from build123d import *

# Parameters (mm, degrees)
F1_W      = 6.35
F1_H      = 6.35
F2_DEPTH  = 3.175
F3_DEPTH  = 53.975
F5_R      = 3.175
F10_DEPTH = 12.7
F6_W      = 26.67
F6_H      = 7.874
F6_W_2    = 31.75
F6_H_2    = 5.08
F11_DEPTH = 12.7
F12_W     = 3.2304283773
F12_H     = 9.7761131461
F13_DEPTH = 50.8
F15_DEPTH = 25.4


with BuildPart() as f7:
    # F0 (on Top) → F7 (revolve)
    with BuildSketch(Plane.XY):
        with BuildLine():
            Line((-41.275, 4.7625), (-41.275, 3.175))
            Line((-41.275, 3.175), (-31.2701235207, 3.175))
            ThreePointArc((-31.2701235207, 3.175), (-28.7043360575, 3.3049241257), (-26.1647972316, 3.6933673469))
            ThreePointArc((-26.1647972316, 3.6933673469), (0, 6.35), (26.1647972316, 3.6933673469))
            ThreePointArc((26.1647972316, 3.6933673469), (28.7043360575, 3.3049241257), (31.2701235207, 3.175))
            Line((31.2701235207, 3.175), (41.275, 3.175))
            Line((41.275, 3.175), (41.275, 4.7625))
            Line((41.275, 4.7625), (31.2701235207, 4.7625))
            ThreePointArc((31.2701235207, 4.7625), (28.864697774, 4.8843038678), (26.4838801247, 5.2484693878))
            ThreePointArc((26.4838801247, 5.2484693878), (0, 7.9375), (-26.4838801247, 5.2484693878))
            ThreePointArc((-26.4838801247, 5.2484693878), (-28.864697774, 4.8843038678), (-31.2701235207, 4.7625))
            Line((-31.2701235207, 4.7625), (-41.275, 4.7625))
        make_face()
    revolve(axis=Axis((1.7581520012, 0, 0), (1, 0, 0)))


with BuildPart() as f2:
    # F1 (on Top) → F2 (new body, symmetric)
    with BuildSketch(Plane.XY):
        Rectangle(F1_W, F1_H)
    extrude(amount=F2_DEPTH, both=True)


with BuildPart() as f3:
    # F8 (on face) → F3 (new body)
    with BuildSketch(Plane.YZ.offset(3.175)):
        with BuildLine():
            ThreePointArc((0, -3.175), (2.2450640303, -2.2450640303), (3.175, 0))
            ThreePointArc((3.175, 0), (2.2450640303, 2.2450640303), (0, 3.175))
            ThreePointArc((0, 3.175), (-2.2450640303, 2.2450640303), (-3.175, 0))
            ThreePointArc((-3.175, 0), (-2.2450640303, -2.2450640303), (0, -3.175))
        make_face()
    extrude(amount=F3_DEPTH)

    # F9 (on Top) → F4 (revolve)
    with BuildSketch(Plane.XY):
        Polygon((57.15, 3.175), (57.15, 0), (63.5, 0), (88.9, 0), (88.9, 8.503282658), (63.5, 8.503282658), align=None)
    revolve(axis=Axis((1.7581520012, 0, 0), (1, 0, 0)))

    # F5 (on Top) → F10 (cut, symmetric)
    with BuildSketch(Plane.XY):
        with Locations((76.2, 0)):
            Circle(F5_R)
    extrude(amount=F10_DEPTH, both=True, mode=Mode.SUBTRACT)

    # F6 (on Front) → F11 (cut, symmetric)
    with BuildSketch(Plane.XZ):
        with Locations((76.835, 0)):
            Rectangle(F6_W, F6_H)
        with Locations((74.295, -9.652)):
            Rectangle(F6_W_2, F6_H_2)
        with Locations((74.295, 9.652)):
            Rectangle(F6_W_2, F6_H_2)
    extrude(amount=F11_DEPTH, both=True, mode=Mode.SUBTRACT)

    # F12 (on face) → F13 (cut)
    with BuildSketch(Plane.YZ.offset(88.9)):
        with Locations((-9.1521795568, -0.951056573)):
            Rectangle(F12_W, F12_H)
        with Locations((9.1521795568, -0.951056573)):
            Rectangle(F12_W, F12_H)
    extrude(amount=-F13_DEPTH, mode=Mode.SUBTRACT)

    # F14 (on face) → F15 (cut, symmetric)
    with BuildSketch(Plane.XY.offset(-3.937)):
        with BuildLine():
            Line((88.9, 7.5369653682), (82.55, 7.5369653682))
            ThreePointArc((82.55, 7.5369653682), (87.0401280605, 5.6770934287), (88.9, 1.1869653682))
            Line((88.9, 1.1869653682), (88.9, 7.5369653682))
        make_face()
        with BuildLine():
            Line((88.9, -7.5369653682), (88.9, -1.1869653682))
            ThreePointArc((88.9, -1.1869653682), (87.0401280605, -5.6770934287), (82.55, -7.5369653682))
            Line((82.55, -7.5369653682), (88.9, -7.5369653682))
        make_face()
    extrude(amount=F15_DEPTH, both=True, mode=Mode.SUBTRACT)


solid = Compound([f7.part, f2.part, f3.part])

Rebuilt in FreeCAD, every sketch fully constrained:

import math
import FreeCAD as App
import Part
import Sketcher
from FreeCAD import Vector
Q = App.Units.Quantity

doc = App.newDocument("Part")
body = doc.addObject("PartDesign::Body", "Body")

sketch1 = doc.addObject("Sketcher::SketchObject", "Sketch")
body.addObject(sketch1)
sketch1.AttachmentSupport = (doc.XY_Plane, [""])
sketch1.MapMode = "FlatFace"
sketch1.addGeometry([
    Part.LineSegment(Vector(-41.3, 4.8, 0), Vector(-41.3, 3.2, 0)),
    Part.LineSegment(Vector(-41.3, 3.2, 0), Vector(-31.3, 3.2, 0)),
    Part.ArcOfCircle(Part.Circle(Vector(-31.3, 28.6, 0), Vector(0, 0, 1), 25.4), math.radians(-90), math.radians(-78.4)),
    Part.ArcOfCircle(Part.Circle(Vector(0, -123.8, 0), Vector(0, 0, 1), 130.2), math.radians(78), math.radians(102)),
    Part.ArcOfCircle(Part.Circle(Vector(31.3, 28.6, 0), Vector(0, 0, 1), 25.4), math.radians(-101.6), math.radians(-90)),
    Part.LineSegment(Vector(31.3, 3.2, 0), Vector(41.3, 3.2, 0)),
    Part.LineSegment(Vector(41.3, 3.2, 0), Vector(41.3, 4.8, 0)),
    Part.LineSegment(Vector(41.3, 4.8, 0), Vector(31.3, 4.8, 0)),
    Part.ArcOfCircle(Part.Circle(Vector(31.3, 28.6, 0), Vector(0, 0, 1), 23.8), math.radians(-101.6), math.radians(-90)),
    Part.ArcOfCircle(Part.Circle(Vector(0, -123.8, 0), Vector(0, 0, 1), 131.8), math.radians(78), math.radians(102)),
    Part.ArcOfCircle(Part.Circle(Vector(-31.3, 28.6, 0), Vector(0, 0, 1), 23.8), math.radians(-90), math.radians(-78.4)),
    Part.LineSegment(Vector(-31.3, 4.8, 0), Vector(-41.3, 4.8, 0)),
], False)
sketch1.addConstraint([
    Sketcher.Constraint("Coincident", 0, 2, 1, 1),
    Sketcher.Constraint("Tangent", 1, 2, 2, 1),
    Sketcher.Constraint("Tangent", 2, 2, 3, 2),
    Sketcher.Constraint("Tangent", 3, 1, 4, 1),
    Sketcher.Constraint("Tangent", 4, 2, 5, 1),
    Sketcher.Constraint("Coincident", 5, 2, 6, 1),
    Sketcher.Constraint("Coincident", 6, 2, 7, 1),
    Sketcher.Constraint("Tangent", 7, 2, 8, 2),
    Sketcher.Constraint("Tangent", 8, 1, 9, 1),
    Sketcher.Constraint("Tangent", 9, 2, 10, 2),
    Sketcher.Constraint("Tangent", 10, 1, 11, 1),
    Sketcher.Constraint("Coincident", 11, 2, 0, 1),
    Sketcher.Constraint("Vertical", 0),
    Sketcher.Constraint("Horizontal", 1),
    Sketcher.Constraint("Horizontal", 5),
    Sketcher.Constraint("Vertical", 6),
    Sketcher.Constraint("Horizontal", 7),
    Sketcher.Constraint("Horizontal", 11),
    Sketcher.Constraint("Coincident", 8, 3, 4, 3),
    Sketcher.Constraint("Coincident", 9, 3, 3, 3),
    Sketcher.Constraint("Coincident", 10, 3, 2, 3),
    Sketcher.Constraint("Equal", 2, 4),
    Sketcher.Constraint("Symmetric", 2, 3, 4, 3, -2),
    Sketcher.Constraint("Equal", 1, 5),
    Sketcher.Constraint("Radius", 2, Q("1 in")),
    Sketcher.Constraint("Radius", 3, Q("5.125 in")),
    Sketcher.Constraint("Radius", 8, Q("0.9375 in")),
    Sketcher.Constraint("DistanceY", 3, 3, 2, 3, Q("6 in")),
    Sketcher.Constraint("DistanceY", -1, 1, 2, 3, Q("1.125 in")),
    Sketcher.Constraint("DistanceX", 0, 2, -1, 1, Q("1.625 in")),
])
revolution = doc.addObject("PartDesign::Revolution", "Revolution")
body.addObject(revolution)
revolution.Profile = sketch1
revolution.ReferenceAxis = (sketch1, ["H_Axis"])
revolution.Angle = 360
body2 = doc.addObject("PartDesign::Body", "Body001")

sketch2 = doc.addObject("Sketcher::SketchObject", "Sketch001")
body2.addObject(sketch2)
sketch2.AttachmentSupport = (doc.getObject("XY_Plane001"), [""])
sketch2.MapMode = "FlatFace"
sketch2.addGeometry([
    Part.LineSegment(Vector(-3, 3, 0), Vector(-3, -3, 0)),
    Part.LineSegment(Vector(-3, -3, 0), Vector(3, -3, 0)),
    Part.LineSegment(Vector(3, -3, 0), Vector(3, 3, 0)),
    Part.LineSegment(Vector(3, 3, 0), Vector(-3, 3, 0)),
], False)
sketch2.addConstraint([
    Sketcher.Constraint("Coincident", 0, 2, 1, 1),
    Sketcher.Constraint("Coincident", 1, 2, 2, 1),
    Sketcher.Constraint("Coincident", 2, 2, 3, 1),
    Sketcher.Constraint("Coincident", 3, 2, 0, 1),
    Sketcher.Constraint("Vertical", 0),
    Sketcher.Constraint("Horizontal", 1),
    Sketcher.Constraint("Vertical", 2),
    Sketcher.Constraint("Horizontal", 3),
    Sketcher.Constraint("Symmetric", 0, 2, 2, 2, -1, 1),
    Sketcher.Constraint("Equal", 3, 0),
    Sketcher.Constraint("DistanceX", 1, 1, 1, 2, Q("0.25 in")),
])
pad1 = doc.addObject("PartDesign::Pad", "Pad")
body2.addObject(pad1)
pad1.Profile = sketch2
pad1.Length = Q("0.25 in")
pad1.Midplane = True
body3 = doc.addObject("PartDesign::Body", "Body002")

sketch3 = doc.addObject("Sketcher::SketchObject", "Sketch002")
body3.addObject(sketch3)
sketch3.AttachmentSupport = (doc.getObject("YZ_Plane002"), [""])
sketch3.MapMode = "FlatFace"
sketch3.AttachmentOffset = App.Placement(Vector(0, 0, 0.125 * 25.4), App.Rotation())
sketch3.addGeometry([
    Part.ArcOfCircle(Part.Circle(Vector(0, 0, 0), Vector(0, 0, 1), 3.2), math.radians(-90), math.radians(0)),
    Part.ArcOfCircle(Part.Circle(Vector(0, 0, 0), Vector(0, 0, 1), 3.2), math.radians(0), math.radians(90)),
    Part.ArcOfCircle(Part.Circle(Vector(0, 0, 0), Vector(0, 0, 1), 3.2), math.radians(90), math.radians(180)),
    Part.ArcOfCircle(Part.Circle(Vector(0, 0, 0), Vector(0, 0, 1), 3.2), math.radians(180), math.radians(270)),
], False)
sketch3.addConstraint([
    Sketcher.Constraint("Tangent", 0, 2, 1, 1),
    Sketcher.Constraint("Tangent", 1, 2, 2, 1),
    Sketcher.Constraint("Tangent", 2, 2, 3, 1),
    Sketcher.Constraint("Tangent", 3, 2, 0, 1),
    Sketcher.Constraint("Coincident", 0, 3, -1, 1),
    Sketcher.Constraint("Equal", 0, 1),
    Sketcher.Constraint("PointOnObject", 0, 2, -1),
    Sketcher.Constraint("PointOnObject", 1, 2, -2),
    Sketcher.Constraint("PointOnObject", 2, 2, -1),
    Sketcher.Constraint("PointOnObject", 3, 2, -2),
    Sketcher.Constraint("Radius", 0, Q("0.125 in")),
])
pad2 = doc.addObject("PartDesign::Pad", "Pad001")
body3.addObject(pad2)
pad2.Profile = sketch3
pad2.Length = Q("2.125 in")

sketch4 = doc.addObject("Sketcher::SketchObject", "Sketch003")
body3.addObject(sketch4)
sketch4.AttachmentSupport = (doc.getObject("XY_Plane002"), [""])
sketch4.MapMode = "FlatFace"
sketch4.addGeometry([
    Part.LineSegment(Vector(57.1, 3.2, 0), Vector(57.1, 0, 0)),
    Part.LineSegment(Vector(57.1, 0, 0), Vector(88.9, 0, 0)),
    Part.LineSegment(Vector(88.9, 0, 0), Vector(88.9, 8.5, 0)),
    Part.LineSegment(Vector(88.9, 8.5, 0), Vector(63.5, 8.5, 0)),
    Part.LineSegment(Vector(63.5, 8.5, 0), Vector(57.1, 3.2, 0)),
], False)
sketch4.addConstraint([
    Sketcher.Constraint("Coincident", 0, 2, 1, 1),
    Sketcher.Constraint("Coincident", 1, 2, 2, 1),
    Sketcher.Constraint("Coincident", 2, 2, 3, 1),
    Sketcher.Constraint("Coincident", 3, 2, 4, 1),
    Sketcher.Constraint("Coincident", 4, 2, 0, 1),
    Sketcher.Constraint("Vertical", 0),
    Sketcher.Constraint("Horizontal", 1),
    Sketcher.Constraint("Vertical", 2),
    Sketcher.Constraint("Horizontal", 3),
    Sketcher.Constraint("PointOnObject", 0, 2, -1),
    Sketcher.Constraint("DistanceX", 3, 2, 3, 1, Q("1 in")),
    Sketcher.Constraint("Angle", 4, Q("-140 deg")),
    Sketcher.Constraint("DistanceX", 1, 1, 1, 2, Q("1.25 in")),
    Sketcher.Constraint("DistanceX", -1, 1, 1, 2, Q("3.5 in")),
    Sketcher.Constraint("DistanceY", 0, 2, 0, 1, Q("0.125 in")),
])
revolution2 = doc.addObject("PartDesign::Revolution", "Revolution001")
body3.addObject(revolution2)
revolution2.Profile = sketch4
revolution2.ReferenceAxis = (sketch4, ["H_Axis"])
revolution2.Angle = 360

sketch5 = doc.addObject("Sketcher::SketchObject", "Sketch004")
body3.addObject(sketch5)
sketch5.AttachmentSupport = (doc.getObject("XY_Plane002"), [""])
sketch5.MapMode = "FlatFace"
sketch5.addGeometry(Part.Circle(Vector(76.2, 0, 0), Vector(0, 0, 1), 3.2), False)
sketch5.addConstraint([
    Sketcher.Constraint("PointOnObject", 0, 3, -1),
    Sketcher.Constraint("Diameter", 0, Q("0.25 in")),
    Sketcher.Constraint("DistanceX", -1, 1, 0, 3, Q("3 in")),
])
pocket1 = doc.addObject("PartDesign::Pocket", "Pocket")
body3.addObject(pocket1)
pocket1.Profile = sketch5
pocket1.Length = Q("1 in")
pocket1.Midplane = True

sketch6 = doc.addObject("Sketcher::SketchObject", "Sketch005")
body3.addObject(sketch6)
sketch6.AttachmentSupport = (doc.getObject("XZ_Plane002"), [""])
sketch6.MapMode = "FlatFace"
sketch6.addGeometry([
    Part.LineSegment(Vector(64, 4, 0), Vector(64, -4, 0)),
    Part.LineSegment(Vector(64, -4, 0), Vector(90, -4, 0)),
    Part.LineSegment(Vector(90, -4, 0), Vector(90, 4, 0)),
    Part.LineSegment(Vector(90, 4, 0), Vector(64, 4, 0)),
    Part.LineSegment(Vector(58, -7, 0), Vector(58, -12, 0)),
    Part.LineSegment(Vector(58, -12, 0), Vector(90, -12, 0)),
    Part.LineSegment(Vector(90, -12, 0), Vector(90, -7, 0)),
    Part.LineSegment(Vector(90, -7, 0), Vector(58, -7, 0)),
    Part.LineSegment(Vector(58, 12, 0), Vector(58, 7, 0)),
    Part.LineSegment(Vector(58, 7, 0), Vector(90, 7, 0)),
    Part.LineSegment(Vector(90, 7, 0), Vector(90, 12, 0)),
    Part.LineSegment(Vector(90, 12, 0), Vector(58, 12, 0)),
], False)
sketch6.addConstraint([
    Sketcher.Constraint("Coincident", 0, 2, 1, 1),
    Sketcher.Constraint("Coincident", 1, 2, 2, 1),
    Sketcher.Constraint("Coincident", 2, 2, 3, 1),
    Sketcher.Constraint("Coincident", 3, 2, 0, 1),
    Sketcher.Constraint("Coincident", 4, 2, 5, 1),
    Sketcher.Constraint("Coincident", 5, 2, 6, 1),
    Sketcher.Constraint("Coincident", 6, 2, 7, 1),
    Sketcher.Constraint("Coincident", 7, 2, 4, 1),
    Sketcher.Constraint("Coincident", 8, 2, 9, 1),
    Sketcher.Constraint("Coincident", 9, 2, 10, 1),
    Sketcher.Constraint("Coincident", 10, 2, 11, 1),
    Sketcher.Constraint("Coincident", 11, 2, 8, 1),
    Sketcher.Constraint("Vertical", 0),
    Sketcher.Constraint("Horizontal", 1),
    Sketcher.Constraint("Vertical", 2),
    Sketcher.Constraint("Horizontal", 3),
    Sketcher.Constraint("Vertical", 4),
    Sketcher.Constraint("Horizontal", 5),
    Sketcher.Constraint("Vertical", 6),
    Sketcher.Constraint("Horizontal", 7),
    Sketcher.Constraint("Vertical", 8),
    Sketcher.Constraint("Horizontal", 9),
    Sketcher.Constraint("Vertical", 10),
    Sketcher.Constraint("Horizontal", 11),
    Sketcher.Constraint("Symmetric", 7, 2, 8, 2, -1),
    Sketcher.Constraint("Symmetric", 5, 2, 10, 2, -1),
    Sketcher.Constraint("Vertical", 2, 2, 5, 2),
    Sketcher.Constraint("DistanceY", 4, 2, 4, 1, Q("0.2 in")),
    Sketcher.Constraint("DistanceX", 1, 1, 1, 2, Q("1.05 in")),
    Sketcher.Constraint("DistanceX", 5, 1, 5, 2, Q("1.25 in")),
    Sketcher.Constraint("DistanceY", 0, 2, 0, 1, Q("0.31 in")),
    Sketcher.Constraint("DistanceX", -1, 1, 0, 2, Q("2.5 in")),
    Sketcher.Constraint("DistanceY", 4, 2, -1, 1, Q("0.48 in")),
    Sketcher.Constraint("DistanceY", 0, 2, -1, 1, Q("0.155 in")),
])
pocket2 = doc.addObject("PartDesign::Pocket", "Pocket001")
body3.addObject(pocket2)
pocket2.Profile = sketch6
pocket2.Length = Q("1 in")
pocket2.Midplane = True

sketch7 = doc.addObject("Sketcher::SketchObject", "Sketch006")
body3.addObject(sketch7)
sketch7.AttachmentSupport = (doc.getObject("YZ_Plane002"), [""])
sketch7.MapMode = "FlatFace"
sketch7.AttachmentOffset = App.Placement(Vector(0, 0, 3.5 * 25.4), App.Rotation())
sketch7.addGeometry([
    Part.LineSegment(Vector(-10.8, 3.9, 0), Vector(-10.8, -5.8, 0)),
    Part.LineSegment(Vector(-10.8, -5.8, 0), Vector(-7.5, -5.8, 0)),
    Part.LineSegment(Vector(-7.5, -5.8, 0), Vector(-7.5, 3.9, 0)),
    Part.LineSegment(Vector(-7.5, 3.9, 0), Vector(-10.8, 3.9, 0)),
    Part.LineSegment(Vector(7.5, 3.9, 0), Vector(7.5, -5.8, 0)),
    Part.LineSegment(Vector(7.5, -5.8, 0), Vector(10.8, -5.8, 0)),
    Part.LineSegment(Vector(10.8, -5.8, 0), Vector(10.8, 3.9, 0)),
    Part.LineSegment(Vector(10.8, 3.9, 0), Vector(7.5, 3.9, 0)),
], False)
sketch7.addConstraint([
    Sketcher.Constraint("Coincident", 0, 2, 1, 1),
    Sketcher.Constraint("Coincident", 1, 2, 2, 1),
    Sketcher.Constraint("Coincident", 2, 2, 3, 1),
    Sketcher.Constraint("Coincident", 3, 2, 0, 1),
    Sketcher.Constraint("Coincident", 4, 2, 5, 1),
    Sketcher.Constraint("Coincident", 5, 2, 6, 1),
    Sketcher.Constraint("Coincident", 6, 2, 7, 1),
    Sketcher.Constraint("Coincident", 7, 2, 4, 1),
    Sketcher.Constraint("Vertical", 0),
    Sketcher.Constraint("Horizontal", 1),
    Sketcher.Constraint("Vertical", 2),
    Sketcher.Constraint("Horizontal", 3),
    Sketcher.Constraint("Vertical", 4),
    Sketcher.Constraint("Horizontal", 5),
    Sketcher.Constraint("Vertical", 6),
    Sketcher.Constraint("Horizontal", 7),
    Sketcher.Constraint("Symmetric", 1, 2, 4, 2, -2),
    Sketcher.Constraint("Symmetric", 3, 2, 6, 2, -2),
    Sketcher.Constraint("DistanceY", -1, 1, 2, 2, Q("0.155 in")),
    Sketcher.Constraint("DistanceX", 1, 1, 1, 2, 3.230428),
    Sketcher.Constraint("DistanceY", 0, 2, 0, 1, 9.776113),
    Sketcher.Constraint("DistanceX", 1, 2, 4, 2, 15.073931),
])
pocket3 = doc.addObject("PartDesign::Pocket", "Pocket002")
body3.addObject(pocket3)
pocket3.Profile = sketch7
pocket3.Length = Q("2 in")

sketch8 = doc.addObject("Sketcher::SketchObject", "Sketch007")
body3.addObject(sketch8)
sketch8.AttachmentSupport = (doc.getObject("XY_Plane002"), [""])
sketch8.MapMode = "FlatFace"
sketch8.AttachmentOffset = App.Placement(Vector(0, 0, -0.155 * 25.4), App.Rotation())
sketch8.addGeometry([
    Part.LineSegment(Vector(89, 8, 0), Vector(83, 8, 0)),
    Part.ArcOfCircle(Part.Circle(Vector(83, 1, 0), Vector(0, 0, 1), 6), math.radians(0), math.radians(90)),
    Part.LineSegment(Vector(89, 1, 0), Vector(89, 8, 0)),
    Part.LineSegment(Vector(89, -8, 0), Vector(89, -1, 0)),
    Part.ArcOfCircle(Part.Circle(Vector(83, -1, 0), Vector(0, 0, 1), 6), math.radians(-90), math.radians(0)),
    Part.LineSegment(Vector(83, -8, 0), Vector(89, -8, 0)),
], False)
sketch8.addConstraint([
    Sketcher.Constraint("Tangent", 0, 2, 1, 2),
    Sketcher.Constraint("Tangent", 1, 1, 2, 1),
    Sketcher.Constraint("Coincident", 2, 2, 0, 1),
    Sketcher.Constraint("Tangent", 3, 2, 4, 2),
    Sketcher.Constraint("Tangent", 4, 1, 5, 1),
    Sketcher.Constraint("Coincident", 5, 2, 3, 1),
    Sketcher.Constraint("Horizontal", 0),
    Sketcher.Constraint("Vertical", 2),
    Sketcher.Constraint("Vertical", 3),
    Sketcher.Constraint("Horizontal", 5),
    Sketcher.Constraint("Equal", 1, 4),
    Sketcher.Constraint("Symmetric", 1, 3, 4, 3, -1),
    Sketcher.Constraint("Radius", 1, Q("0.25 in")),
    Sketcher.Constraint("DistanceX", -1, 1, 1, 1, Q("3.5 in")),
    Sketcher.Constraint("DistanceY", 4, 3, 1, 3, 2.373931),
])
pocket4 = doc.addObject("PartDesign::Pocket", "Pocket003")
body3.addObject(pocket4)
pocket4.Profile = sketch8
pocket4.Length = Q("2 in")
pocket4.Midplane = True

doc.recompute()
